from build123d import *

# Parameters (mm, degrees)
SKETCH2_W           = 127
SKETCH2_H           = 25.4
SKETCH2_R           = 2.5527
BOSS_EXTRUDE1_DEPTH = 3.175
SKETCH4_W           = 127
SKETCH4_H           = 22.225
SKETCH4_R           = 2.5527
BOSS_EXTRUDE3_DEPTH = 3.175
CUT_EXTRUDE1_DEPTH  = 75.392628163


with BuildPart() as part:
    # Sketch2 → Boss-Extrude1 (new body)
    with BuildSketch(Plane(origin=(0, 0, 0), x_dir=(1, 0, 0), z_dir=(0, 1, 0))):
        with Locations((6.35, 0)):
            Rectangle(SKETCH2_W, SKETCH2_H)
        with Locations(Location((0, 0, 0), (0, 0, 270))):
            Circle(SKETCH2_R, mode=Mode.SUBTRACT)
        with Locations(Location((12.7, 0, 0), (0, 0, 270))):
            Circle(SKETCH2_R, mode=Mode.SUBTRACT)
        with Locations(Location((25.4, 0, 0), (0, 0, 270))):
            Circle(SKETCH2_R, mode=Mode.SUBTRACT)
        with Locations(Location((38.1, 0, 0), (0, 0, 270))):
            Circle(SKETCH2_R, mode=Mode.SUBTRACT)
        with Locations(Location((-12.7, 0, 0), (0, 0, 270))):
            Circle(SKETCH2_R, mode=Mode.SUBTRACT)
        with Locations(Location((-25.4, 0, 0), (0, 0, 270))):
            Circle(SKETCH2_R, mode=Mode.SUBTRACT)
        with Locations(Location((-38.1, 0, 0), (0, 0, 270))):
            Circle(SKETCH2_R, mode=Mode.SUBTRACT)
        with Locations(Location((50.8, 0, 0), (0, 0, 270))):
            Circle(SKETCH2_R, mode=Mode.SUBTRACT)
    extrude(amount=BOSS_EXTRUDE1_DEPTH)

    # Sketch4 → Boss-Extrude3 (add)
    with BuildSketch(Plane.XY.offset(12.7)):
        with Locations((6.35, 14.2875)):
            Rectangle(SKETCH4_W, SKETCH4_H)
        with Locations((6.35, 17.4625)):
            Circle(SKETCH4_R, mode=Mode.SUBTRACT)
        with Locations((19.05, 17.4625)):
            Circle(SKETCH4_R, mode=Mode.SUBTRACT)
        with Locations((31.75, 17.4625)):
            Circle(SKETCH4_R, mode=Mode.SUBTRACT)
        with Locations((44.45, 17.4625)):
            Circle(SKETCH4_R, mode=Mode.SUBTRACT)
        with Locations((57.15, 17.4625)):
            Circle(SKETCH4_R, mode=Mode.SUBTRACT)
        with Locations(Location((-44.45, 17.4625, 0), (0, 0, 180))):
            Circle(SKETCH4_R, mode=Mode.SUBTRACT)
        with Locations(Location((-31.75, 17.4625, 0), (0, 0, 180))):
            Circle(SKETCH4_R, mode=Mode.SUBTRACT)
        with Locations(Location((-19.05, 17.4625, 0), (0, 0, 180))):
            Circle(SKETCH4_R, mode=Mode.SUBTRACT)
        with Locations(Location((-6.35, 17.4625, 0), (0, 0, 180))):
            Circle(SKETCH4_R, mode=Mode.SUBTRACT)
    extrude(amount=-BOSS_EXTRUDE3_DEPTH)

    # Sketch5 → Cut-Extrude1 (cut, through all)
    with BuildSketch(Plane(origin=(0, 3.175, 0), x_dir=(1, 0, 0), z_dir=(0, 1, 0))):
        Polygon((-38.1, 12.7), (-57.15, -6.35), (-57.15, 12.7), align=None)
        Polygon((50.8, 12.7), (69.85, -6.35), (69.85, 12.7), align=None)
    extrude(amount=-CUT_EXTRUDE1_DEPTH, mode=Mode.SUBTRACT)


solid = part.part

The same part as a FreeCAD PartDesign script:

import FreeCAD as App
import Part
import Sketcher
Q = App.Units.Quantity


def add_polygon(sketch, points):
    """Adds a closed chain of lines whose ends are joined by coincident constraints."""
    first, n = sketch.GeometryCount, len(points)
    for a, b in zip(points, points[1:] + points[:1]):
        sketch.addGeometry(Part.LineSegment(App.Vector(*a, 0), App.Vector(*b, 0)), False)
    for i in range(n):
        sketch.addConstraint(Sketcher.Constraint("Coincident", first + i, 2, first + (i + 1) % n, 1))

doc = App.newDocument("Part")
body = doc.addObject("PartDesign::Body", "Body")

# Sketch on XZ plane
sketch1 = body.newObject("Sketcher::SketchObject", "Sketch")
sketch1.AttachmentSupport = (doc.getObject("XZ_Plane"), [""])
sketch1.MapMode = "FlatFace"
add_polygon(sketch1, [(-57.1, -12.7), (-57.1, 12.7), (69.8, 12.7), (69.8, -12.7)])  # lines 0-3
sketch1.addGeometry(Part.Circle(App.Vector(-38.1, 0, 0), App.Vector(0, 0, 1), 2.6), False)  # 4
sketch1.addGeometry(Part.Circle(App.Vector(-25.4, 0, 0), App.Vector(0, 0, 1), 2.6), False)  # 5
sketch1.addGeometry(Part.Circle(App.Vector(-12.7, 0, 0), App.Vector(0, 0, 1), 2.6), False)  # 6
sketch1.addGeometry(Part.Circle(App.Vector(0, 0, 0), App.Vector(0, 0, 1), 2.6), False)  # 7
sketch1.addGeometry(Part.Circle(App.Vector(12.7, 0, 0), App.Vector(0, 0, 1), 2.6), False)  # 8
sketch1.addGeometry(Part.Circle(App.Vector(25.4, 0, 0), App.Vector(0, 0, 1), 2.6), False)  # 9
sketch1.addGeometry(Part.Circle(App.Vector(38.1, 0, 0), App.Vector(0, 0, 1), 2.6), False)  # 10
sketch1.addGeometry(Part.Circle(App.Vector(50.8, 0, 0), App.Vector(0, 0, 1), 2.6), False)  # 11
sketch1.addConstraint(Sketcher.Constraint("Vertical", 0))
sketch1.addConstraint(Sketcher.Constraint("Horizontal", 1))
sketch1.addConstraint(Sketcher.Constraint("Vertical", 2))
sketch1.addConstraint(Sketcher.Constraint("Horizontal", 3))
sketch1.addConstraint(Sketcher.Constraint("Coincident", 7, 3, -1, 1))
sketch1.addConstraint(Sketcher.Constraint("Equal", 4, 5))
sketch1.addConstraint(Sketcher.Constraint("Equal", 5, 6))
sketch1.addConstraint(Sketcher.Constraint("Equal", 6, 7))
sketch1.addConstraint(Sketcher.Constraint("Equal", 7, 8))
sketch1.addConstraint(Sketcher.Constraint("Equal", 8, 9))
sketch1.addConstraint(Sketcher.Constraint("Equal", 9, 10))
sketch1.addConstraint(Sketcher.Constraint("Equal", 10, 11))
sketch1.addConstraint(Sketcher.Constraint("Symmetric", 6, 3, 8, 3, -1, 1))
sketch1.addConstraint(Sketcher.Constraint("Symmetric", 5, 3, 9, 3, -1, 1))
sketch1.addConstraint(Sketcher.Constraint("Symmetric", 4, 3, 10, 3, -1, 1))
sketch1.addConstraint(Sketcher.Constraint("PointOnObject", 4, 3, -1))
sketch1.addConstraint(Sketcher.Constraint("PointOnObject", 5, 3, -1))
sketch1.addConstraint(Sketcher.Constraint("PointOnObject", 6, 3, -1))
sketch1.addConstraint(Sketcher.Constraint("PointOnObject", 11, 3, -1))
sketch1.addConstraint(Sketcher.Constraint("DistanceX", 1, 1, 1, 2, Q("5 in")))
sketch1.addConstraint(Sketcher.Constraint("DistanceY", 0, 1, 0, 2, Q("1 in")))
sketch1.addConstraint(Sketcher.Constraint("Diameter", 4, Q("0.201 in")))
sketch1.addConstraint(Sketcher.Constraint("DistanceX", 5, 3, -1, 1, Q("1 in")))
sketch1.addConstraint(Sketcher.Constraint("DistanceX", -1, 1, 11, 3, Q("2 in")))
sketch1.addConstraint(Sketcher.Constraint("DistanceX", 4, 3, 6, 3, Q("1 in")))
sketch1.addConstraint(Sketcher.Constraint("DistanceX", 6, 3, 8, 3, Q("1 in")))
sketch1.addConstraint(Sketcher.Constraint("DistanceY", -1, 1, 0, 2, Q("0.5 in")))
sketch1.addConstraint(Sketcher.Constraint("DistanceX", 0, 2, -1, 1, Q("2.25 in")))
pad1 = body.newObject("PartDesign::Pad", "Pad")
pad1.Profile = sketch1
pad1.Length = Q("0.125 in")
pad1.Reversed = True

# Sketch on XY plane
sketch2 = body.newObject("Sketcher::SketchObject", "Sketch001")
sketch2.AttachmentSupport = (doc.getObject("XY_Plane"), [""])
sketch2.MapMode = "FlatFace"
sketch2.AttachmentOffset = App.Placement(App.Vector(0, 0, 0.5 * 25.4), App.Rotation())
add_polygon(sketch2, [(-57.1, 25.4), (-57.1, 3.2), (69.8, 3.2), (69.8, 25.4)])  # lines 0-3
sketch2.addGeometry(Part.Circle(App.Vector(-44.5, 17.5, 0), App.Vector(0, 0, 1), 2.6), False)  # 4
sketch2.addGeometry(Part.Circle(App.Vector(-31.8, 17.5, 0), App.Vector(0, 0, 1), 2.6), False)  # 5
sketch2.addGeometry(Part.Circle(App.Vector(-19.1, 17.5, 0), App.Vector(0, 0, 1), 2.6), False)  # 6
sketch2.addGeometry(Part.Circle(App.Vector(-6.3, 17.5, 0), App.Vector(0, 0, 1), 2.6), False)  # 7
sketch2.addGeometry(Part.Circle(App.Vector(6.3, 17.5, 0), App.Vector(0, 0, 1), 2.6), False)  # 8
sketch2.addGeometry(Part.Circle(App.Vector(19.1, 17.5, 0), App.Vector(0, 0, 1), 2.6), False)  # 9
sketch2.addGeometry(Part.Circle(App.Vector(31.8, 17.5, 0), App.Vector(0, 0, 1), 2.6), False)  # 10
sketch2.addGeometry(Part.Circle(App.Vector(44.5, 17.5, 0), App.Vector(0, 0, 1), 2.6), False)  # 11
sketch2.addGeometry(Part.Circle(App.Vector(57.1, 17.5, 0), App.Vector(0, 0, 1), 2.6), False)  # 12
sketch2.addConstraint(Sketcher.Constraint("Vertical", 0))
sketch2.addConstraint(Sketcher.Constraint("Horizontal", 1))
sketch2.addConstraint(Sketcher.Constraint("Vertical", 2))
sketch2.addConstraint(Sketcher.Constraint("Horizontal", 3))
sketch2.addConstraint(Sketcher.Constraint("Equal", 4, 5))
sketch2.addConstraint(Sketcher.Constraint("Equal", 5, 6))
sketch2.addConstraint(Sketcher.Constraint("Equal", 6, 7))
sketch2.addConstraint(Sketcher.Constraint("Equal", 7, 8))
sketch2.addConstraint(Sketcher.Constraint("Equal", 8, 9))
sketch2.addConstraint(Sketcher.Constraint("Equal", 9, 10))
sketch2.addConstraint(Sketcher.Constraint("Equal", 10, 11))
sketch2.addConstraint(Sketcher.Constraint("Equal", 11, 12))
sketch2.addConstraint(Sketcher.Constraint("Symmetric", 7, 3, 8, 3, -2))
sketch2.addConstraint(Sketcher.Constraint("Symmetric", 6, 3, 9, 3, -2))
sketch2.addConstraint(Sketcher.Constraint("Symmetric", 5, 3, 10, 3, -2))
sketch2.addConstraint(Sketcher.Constraint("Symmetric", 4, 3, 11, 3, -2))
sketch2.addConstraint(Sketcher.Constraint("Horizontal", 4, 3, 5, 3))
sketch2.addConstraint(Sketcher.Constraint("Horizontal", 5, 3, 6, 3))
sketch2.addConstraint(Sketcher.Constraint("Horizontal", 6, 3, 7, 3))
sketch2.addConstraint(Sketcher.Constraint("Horizontal", 11, 3, 12, 3))
sketch2.addConstraint(Sketcher.Constraint("DistanceX", 1, 1, 1, 2, Q("5 in")))
sketch2.addConstraint(Sketcher.Constraint("Diameter", 4, Q("0.201 in")))
sketch2.addConstraint(Sketcher.Constraint("DistanceY", -1, 1, 2, 2, Q("1 in")))
sketch2.addConstraint(Sketcher.Constraint("DistanceX", 4, 3, 6, 3, Q("1 in")))
sketch2.addConstraint(Sketcher.Constraint("DistanceX", 5, 3, 7, 3, Q("1 in")))
sketch2.addConstraint(Sketcher.Constraint("DistanceX", 6, 3, 8, 3, Q("1 in")))
sketch2.addConstraint(Sketcher.Constraint("DistanceX", 10, 3, 12, 3, Q("1 in")))
sketch2.addConstraint(Sketcher.Constraint("DistanceX", 0, 2, 5, 3, Q("1 in")))
sketch2.addConstraint(Sketcher.Constraint("DistanceX", 4, 3, 5, 3, Q("0.5 in")))
sketch2.addConstraint(Sketcher.Constraint("DistanceY", 0, 2, 0, 1, Q("0.875 in")))
sketch2.addConstraint(Sketcher.Constraint("DistanceY", -1, 1, 4, 3, Q("0.6875 in")))
pad2 = body.newObject("PartDesign::Pad", "Pad001")
pad2.Profile = sketch2
pad2.Length = Q("0.125 in")
pad2.Reversed = True

# Sketch on XZ plane
sketch3 = body.newObject("Sketcher::SketchObject", "Sketch002")
sketch3.AttachmentSupport = (doc.getObject("XZ_Plane"), [""])
sketch3.MapMode = "FlatFace"
sketch3.AttachmentOffset = App.Placement(App.Vector(0, 0, -0.125 * 25.4), App.Rotation())
add_polygon(sketch3, [(-57, 6), (-38, -13), (-57, -13)])  # lines 0-2
add_polygon(sketch3, [(51, -13), (70, 6), (70, -13)])  # lines 3-5
sketch3.addConstraint(Sketcher.Constraint("Horizontal", 1))
sketch3.addConstraint(Sketcher.Constraint("Vertical", 2))
sketch3.addConstraint(Sketcher.Constraint("Vertical", 4))
sketch3.addConstraint(Sketcher.Constraint("Horizontal", 5))
sketch3.addConstraint(Sketcher.Constraint("Perpendicular", 0, 3))
sketch3.addConstraint(Sketcher.Constraint("Horizontal", 2, 2, 3, 2))
sketch3.addConstraint(Sketcher.Constraint("Horizontal", 1, 2, 4, 2))
sketch3.addConstraint(Sketcher.Constraint("Equal", 1, 5))
sketch3.addConstraint(Sketcher.Constraint("DistanceX", -1, 1, 5, 2, Q("2 in")))
sketch3.addConstraint(Sketcher.Constraint("DistanceX", 2, 2, 3, 2, Q("5 in")))
sketch3.addConstraint(Sketcher.Constraint("DistanceX", 1, 2, 1, 1, Q("0.75 in")))
sketch3.addConstraint(Sketcher.Constraint("DistanceY", 0, 2, -1, 1, Q("0.5 in")))
pocket1 = body.newObject("PartDesign::Pocket", "Pocket")
pocket1.Profile = sketch3
pocket1.Type = "ThroughAll"
pocket1.Reversed = True

doc.recompute()
